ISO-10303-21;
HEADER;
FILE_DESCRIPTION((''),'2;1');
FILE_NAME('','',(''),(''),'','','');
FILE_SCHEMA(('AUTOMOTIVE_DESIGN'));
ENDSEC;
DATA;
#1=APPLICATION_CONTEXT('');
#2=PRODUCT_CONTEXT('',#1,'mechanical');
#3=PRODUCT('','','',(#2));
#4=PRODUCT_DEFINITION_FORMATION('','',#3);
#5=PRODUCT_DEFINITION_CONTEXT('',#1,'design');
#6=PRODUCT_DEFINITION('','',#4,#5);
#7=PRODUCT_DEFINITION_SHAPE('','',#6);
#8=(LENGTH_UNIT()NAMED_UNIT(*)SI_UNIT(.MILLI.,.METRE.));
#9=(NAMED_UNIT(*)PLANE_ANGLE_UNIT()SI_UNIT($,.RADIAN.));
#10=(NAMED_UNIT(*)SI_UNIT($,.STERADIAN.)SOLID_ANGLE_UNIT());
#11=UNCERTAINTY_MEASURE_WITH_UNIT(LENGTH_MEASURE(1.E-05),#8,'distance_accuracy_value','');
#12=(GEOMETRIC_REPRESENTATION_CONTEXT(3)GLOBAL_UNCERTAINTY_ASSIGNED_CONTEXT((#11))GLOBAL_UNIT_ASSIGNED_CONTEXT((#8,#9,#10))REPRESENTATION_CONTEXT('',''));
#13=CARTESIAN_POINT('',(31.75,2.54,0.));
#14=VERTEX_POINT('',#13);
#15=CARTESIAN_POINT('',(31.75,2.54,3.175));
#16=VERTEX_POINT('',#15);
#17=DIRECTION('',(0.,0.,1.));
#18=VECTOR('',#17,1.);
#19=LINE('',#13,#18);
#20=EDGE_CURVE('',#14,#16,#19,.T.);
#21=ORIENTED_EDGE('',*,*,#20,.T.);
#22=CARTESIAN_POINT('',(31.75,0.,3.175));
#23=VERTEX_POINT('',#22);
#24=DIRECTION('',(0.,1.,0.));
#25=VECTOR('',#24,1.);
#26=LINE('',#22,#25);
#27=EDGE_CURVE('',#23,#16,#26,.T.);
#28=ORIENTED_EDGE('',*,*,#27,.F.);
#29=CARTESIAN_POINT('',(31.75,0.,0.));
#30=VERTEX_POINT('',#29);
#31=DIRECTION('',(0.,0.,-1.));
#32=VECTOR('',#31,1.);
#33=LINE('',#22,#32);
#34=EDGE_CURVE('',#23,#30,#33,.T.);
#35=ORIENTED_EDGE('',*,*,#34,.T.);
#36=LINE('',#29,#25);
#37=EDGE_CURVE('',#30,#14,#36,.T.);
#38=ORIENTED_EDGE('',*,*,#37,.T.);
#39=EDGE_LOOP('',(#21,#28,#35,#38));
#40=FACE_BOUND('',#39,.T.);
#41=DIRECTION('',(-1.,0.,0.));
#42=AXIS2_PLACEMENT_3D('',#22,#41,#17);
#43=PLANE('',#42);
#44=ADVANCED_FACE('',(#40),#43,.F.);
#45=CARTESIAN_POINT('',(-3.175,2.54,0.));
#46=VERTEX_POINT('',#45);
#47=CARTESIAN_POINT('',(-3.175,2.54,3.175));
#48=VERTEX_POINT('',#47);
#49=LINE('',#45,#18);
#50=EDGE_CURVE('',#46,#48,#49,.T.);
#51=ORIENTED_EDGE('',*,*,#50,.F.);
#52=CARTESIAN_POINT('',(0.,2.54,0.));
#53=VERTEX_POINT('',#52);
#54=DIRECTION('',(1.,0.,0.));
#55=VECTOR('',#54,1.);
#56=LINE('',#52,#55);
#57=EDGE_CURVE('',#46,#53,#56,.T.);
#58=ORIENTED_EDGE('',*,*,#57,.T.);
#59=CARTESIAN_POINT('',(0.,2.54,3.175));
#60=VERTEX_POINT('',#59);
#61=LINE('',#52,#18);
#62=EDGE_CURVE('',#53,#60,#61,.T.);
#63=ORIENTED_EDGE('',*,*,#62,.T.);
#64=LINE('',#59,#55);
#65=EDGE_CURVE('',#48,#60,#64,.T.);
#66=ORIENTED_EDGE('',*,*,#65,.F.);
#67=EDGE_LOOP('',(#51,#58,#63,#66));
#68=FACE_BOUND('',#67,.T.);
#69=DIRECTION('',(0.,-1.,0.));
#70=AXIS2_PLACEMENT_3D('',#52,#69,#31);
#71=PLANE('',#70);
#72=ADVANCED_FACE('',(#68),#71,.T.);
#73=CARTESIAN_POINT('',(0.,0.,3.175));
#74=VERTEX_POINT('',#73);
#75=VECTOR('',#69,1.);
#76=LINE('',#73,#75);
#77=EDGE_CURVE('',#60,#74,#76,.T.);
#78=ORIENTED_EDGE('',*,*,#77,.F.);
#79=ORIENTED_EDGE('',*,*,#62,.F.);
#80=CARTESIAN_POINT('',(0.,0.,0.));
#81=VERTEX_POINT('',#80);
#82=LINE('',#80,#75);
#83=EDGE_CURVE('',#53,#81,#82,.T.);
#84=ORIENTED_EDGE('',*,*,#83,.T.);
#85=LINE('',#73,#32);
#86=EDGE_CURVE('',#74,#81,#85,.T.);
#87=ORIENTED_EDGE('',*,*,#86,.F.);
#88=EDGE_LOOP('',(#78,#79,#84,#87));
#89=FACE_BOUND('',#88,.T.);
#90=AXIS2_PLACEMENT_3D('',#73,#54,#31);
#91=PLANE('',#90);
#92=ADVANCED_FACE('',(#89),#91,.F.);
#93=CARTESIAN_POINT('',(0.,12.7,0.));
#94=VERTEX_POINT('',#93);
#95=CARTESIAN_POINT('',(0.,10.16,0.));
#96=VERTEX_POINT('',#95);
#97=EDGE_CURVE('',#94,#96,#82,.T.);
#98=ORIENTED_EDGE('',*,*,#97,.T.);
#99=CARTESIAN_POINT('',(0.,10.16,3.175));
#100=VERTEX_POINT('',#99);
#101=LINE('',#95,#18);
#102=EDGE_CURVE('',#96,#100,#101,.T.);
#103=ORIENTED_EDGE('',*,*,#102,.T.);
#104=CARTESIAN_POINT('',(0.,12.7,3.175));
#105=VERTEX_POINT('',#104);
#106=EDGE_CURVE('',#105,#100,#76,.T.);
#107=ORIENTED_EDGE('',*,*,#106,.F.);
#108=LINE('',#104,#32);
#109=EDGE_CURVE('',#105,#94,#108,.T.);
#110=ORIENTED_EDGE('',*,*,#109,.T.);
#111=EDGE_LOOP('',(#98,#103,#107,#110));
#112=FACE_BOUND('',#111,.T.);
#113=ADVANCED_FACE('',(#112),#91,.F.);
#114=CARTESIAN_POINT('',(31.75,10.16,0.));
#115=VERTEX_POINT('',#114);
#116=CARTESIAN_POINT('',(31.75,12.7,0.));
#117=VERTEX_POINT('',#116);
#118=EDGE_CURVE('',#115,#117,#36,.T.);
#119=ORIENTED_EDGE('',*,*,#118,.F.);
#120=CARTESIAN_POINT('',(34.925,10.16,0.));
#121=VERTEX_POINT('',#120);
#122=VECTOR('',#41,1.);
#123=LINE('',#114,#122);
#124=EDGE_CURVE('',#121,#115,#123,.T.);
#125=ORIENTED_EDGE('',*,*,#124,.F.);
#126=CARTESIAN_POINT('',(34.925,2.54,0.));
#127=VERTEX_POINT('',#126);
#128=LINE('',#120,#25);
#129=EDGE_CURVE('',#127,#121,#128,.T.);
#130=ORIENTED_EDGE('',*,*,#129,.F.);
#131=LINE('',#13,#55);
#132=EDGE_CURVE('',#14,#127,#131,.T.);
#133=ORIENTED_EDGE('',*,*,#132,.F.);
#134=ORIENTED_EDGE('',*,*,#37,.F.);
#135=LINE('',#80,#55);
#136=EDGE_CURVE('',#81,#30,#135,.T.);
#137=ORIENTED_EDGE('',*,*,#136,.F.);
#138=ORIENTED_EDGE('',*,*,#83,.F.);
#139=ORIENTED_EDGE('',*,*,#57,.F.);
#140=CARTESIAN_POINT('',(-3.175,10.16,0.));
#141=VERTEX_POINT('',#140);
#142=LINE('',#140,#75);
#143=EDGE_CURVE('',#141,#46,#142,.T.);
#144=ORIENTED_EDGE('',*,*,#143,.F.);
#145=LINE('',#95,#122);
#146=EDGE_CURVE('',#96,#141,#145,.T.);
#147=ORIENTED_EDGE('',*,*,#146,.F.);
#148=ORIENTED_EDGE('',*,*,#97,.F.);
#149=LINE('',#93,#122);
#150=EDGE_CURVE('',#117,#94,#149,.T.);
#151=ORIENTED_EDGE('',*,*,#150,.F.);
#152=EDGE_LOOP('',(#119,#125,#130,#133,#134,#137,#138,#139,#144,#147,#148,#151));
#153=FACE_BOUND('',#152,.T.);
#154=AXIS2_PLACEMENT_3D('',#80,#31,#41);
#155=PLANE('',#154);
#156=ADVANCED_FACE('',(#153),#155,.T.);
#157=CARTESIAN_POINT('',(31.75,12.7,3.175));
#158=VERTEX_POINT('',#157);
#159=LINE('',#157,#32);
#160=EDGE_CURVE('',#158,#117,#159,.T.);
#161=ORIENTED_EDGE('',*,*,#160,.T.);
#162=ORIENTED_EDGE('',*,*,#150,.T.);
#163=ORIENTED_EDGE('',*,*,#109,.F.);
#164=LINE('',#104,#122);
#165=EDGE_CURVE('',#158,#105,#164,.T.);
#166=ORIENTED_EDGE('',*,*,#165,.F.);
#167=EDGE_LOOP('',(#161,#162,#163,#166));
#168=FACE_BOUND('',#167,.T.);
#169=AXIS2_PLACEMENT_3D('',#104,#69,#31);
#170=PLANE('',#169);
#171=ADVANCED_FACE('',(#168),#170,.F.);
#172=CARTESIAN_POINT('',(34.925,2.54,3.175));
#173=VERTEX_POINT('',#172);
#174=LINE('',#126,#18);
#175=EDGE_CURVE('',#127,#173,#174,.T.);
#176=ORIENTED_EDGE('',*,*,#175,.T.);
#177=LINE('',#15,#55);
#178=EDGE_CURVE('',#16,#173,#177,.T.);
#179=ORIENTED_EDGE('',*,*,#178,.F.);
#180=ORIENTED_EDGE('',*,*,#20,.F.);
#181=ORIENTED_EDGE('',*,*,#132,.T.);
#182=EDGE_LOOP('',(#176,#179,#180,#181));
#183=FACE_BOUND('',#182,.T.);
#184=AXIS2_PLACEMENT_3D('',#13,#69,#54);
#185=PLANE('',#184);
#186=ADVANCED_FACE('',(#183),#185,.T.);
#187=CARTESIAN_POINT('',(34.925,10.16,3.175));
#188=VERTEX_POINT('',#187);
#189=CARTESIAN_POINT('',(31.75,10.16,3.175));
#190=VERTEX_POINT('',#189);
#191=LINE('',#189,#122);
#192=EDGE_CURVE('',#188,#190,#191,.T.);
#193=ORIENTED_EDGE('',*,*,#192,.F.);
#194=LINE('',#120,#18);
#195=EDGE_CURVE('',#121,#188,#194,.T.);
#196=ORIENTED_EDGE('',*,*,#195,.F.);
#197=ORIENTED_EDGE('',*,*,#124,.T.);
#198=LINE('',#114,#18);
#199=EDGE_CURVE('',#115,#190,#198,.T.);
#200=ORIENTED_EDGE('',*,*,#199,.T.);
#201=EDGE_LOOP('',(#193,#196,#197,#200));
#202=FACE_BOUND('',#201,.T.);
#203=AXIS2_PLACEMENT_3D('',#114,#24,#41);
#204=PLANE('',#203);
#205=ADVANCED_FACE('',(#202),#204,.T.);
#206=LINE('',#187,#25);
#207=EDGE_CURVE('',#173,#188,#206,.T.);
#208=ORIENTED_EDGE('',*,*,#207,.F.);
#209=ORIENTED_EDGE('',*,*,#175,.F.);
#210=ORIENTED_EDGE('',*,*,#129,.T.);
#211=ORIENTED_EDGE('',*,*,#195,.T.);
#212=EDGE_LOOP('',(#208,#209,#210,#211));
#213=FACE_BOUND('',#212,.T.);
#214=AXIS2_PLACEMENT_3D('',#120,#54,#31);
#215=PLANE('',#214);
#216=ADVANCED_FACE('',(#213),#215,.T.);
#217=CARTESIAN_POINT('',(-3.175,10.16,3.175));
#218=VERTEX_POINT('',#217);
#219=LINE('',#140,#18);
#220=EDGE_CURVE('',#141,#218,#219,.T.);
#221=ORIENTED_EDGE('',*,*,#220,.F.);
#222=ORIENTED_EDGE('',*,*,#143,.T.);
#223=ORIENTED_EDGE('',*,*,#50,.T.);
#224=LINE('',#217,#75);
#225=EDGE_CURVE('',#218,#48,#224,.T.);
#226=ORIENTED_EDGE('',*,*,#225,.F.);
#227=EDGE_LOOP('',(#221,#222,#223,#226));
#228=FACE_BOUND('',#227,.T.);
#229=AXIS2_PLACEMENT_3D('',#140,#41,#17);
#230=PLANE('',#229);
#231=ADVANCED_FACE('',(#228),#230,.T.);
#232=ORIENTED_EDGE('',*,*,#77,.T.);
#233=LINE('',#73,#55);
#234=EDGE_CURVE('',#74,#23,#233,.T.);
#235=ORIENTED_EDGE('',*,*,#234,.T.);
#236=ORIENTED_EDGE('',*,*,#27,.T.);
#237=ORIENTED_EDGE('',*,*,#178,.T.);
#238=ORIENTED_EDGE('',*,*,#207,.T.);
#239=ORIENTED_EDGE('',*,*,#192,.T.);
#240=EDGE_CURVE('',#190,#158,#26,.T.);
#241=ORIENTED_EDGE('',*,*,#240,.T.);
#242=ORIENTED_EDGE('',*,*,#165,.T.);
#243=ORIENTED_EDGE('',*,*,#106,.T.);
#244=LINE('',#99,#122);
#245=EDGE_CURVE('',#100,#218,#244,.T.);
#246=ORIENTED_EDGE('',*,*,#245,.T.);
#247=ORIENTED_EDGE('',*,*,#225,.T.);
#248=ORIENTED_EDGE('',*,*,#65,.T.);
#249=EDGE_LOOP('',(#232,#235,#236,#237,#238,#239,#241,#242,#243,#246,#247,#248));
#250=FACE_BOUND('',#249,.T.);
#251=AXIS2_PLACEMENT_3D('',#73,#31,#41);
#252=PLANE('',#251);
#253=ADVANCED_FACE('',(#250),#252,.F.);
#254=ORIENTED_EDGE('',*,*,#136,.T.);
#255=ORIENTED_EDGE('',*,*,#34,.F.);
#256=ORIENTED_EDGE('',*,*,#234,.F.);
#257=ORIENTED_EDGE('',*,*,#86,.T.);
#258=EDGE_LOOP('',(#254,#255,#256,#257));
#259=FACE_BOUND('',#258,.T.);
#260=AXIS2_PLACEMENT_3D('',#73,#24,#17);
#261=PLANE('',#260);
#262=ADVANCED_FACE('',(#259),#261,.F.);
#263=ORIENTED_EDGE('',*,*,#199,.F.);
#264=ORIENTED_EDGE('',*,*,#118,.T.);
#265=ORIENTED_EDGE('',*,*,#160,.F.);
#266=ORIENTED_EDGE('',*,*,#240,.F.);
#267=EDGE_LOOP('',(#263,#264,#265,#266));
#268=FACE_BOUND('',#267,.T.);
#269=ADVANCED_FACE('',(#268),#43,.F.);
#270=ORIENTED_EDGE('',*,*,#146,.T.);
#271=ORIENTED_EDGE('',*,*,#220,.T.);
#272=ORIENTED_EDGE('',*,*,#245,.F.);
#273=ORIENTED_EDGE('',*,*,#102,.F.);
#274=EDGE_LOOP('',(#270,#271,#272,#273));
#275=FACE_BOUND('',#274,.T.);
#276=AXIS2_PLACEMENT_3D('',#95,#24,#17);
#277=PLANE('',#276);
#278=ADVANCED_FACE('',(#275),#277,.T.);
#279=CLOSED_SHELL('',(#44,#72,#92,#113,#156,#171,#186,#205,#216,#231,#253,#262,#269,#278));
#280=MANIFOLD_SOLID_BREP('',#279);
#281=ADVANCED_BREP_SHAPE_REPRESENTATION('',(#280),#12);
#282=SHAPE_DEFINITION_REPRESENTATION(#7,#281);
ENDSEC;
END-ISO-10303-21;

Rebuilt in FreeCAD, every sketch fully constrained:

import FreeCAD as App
import Part
import Sketcher
from FreeCAD import Vector
Q = App.Units.Quantity

doc = App.newDocument("Part")
body = doc.addObject("PartDesign::Body", "Body")

# Sketch on XY plane
sketch1 = body.newObject("Sketcher::SketchObject", "Sketch")
sketch1.AttachmentSupport = (doc.getObject("XY_Plane"), [""])
sketch1.MapMode = "FlatFace"
sketch1.addGeometry([
    Part.LineSegment(Vector(0, 13, 0), Vector(0, 0, 0)),
    Part.LineSegment(Vector(0, 0, 0), Vector(32, 0, 0)),
    Part.LineSegment(Vector(32, 0, 0), Vector(32, 13, 0)),
    Part.LineSegment(Vector(32, 13, 0), Vector(0, 13, 0)),
], False)
sketch1.addConstraint([
    Sketcher.Constraint("Coincident", 0, 2, 1, 1),
    Sketcher.Constraint("Coincident", 1, 2, 2, 1),
    Sketcher.Constraint("Coincident", 2, 2, 3, 1),
    Sketcher.Constraint("Coincident", 3, 2, 0, 1),
    Sketcher.Constraint("Vertical", 0),
    Sketcher.Constraint("Horizontal", 1),
    Sketcher.Constraint("Vertical", 2),
    Sketcher.Constraint("Horizontal", 3),
    Sketcher.Constraint("Coincident", 0, 2, -1, 1),
    Sketcher.Constraint("DistanceY", 0, 2, 0, 1, Q("0.5 in")),
    Sketcher.Constraint("DistanceX", 1, 1, 1, 2, Q("1.25 in")),
])
pad1 = body.newObject("PartDesign::Pad", "Pad")
pad1.Profile = sketch1
pad1.Length = Q("0.125 in")

# Sketch on XY plane
sketch2 = body.newObject("Sketcher::SketchObject", "Sketch001")
sketch2.AttachmentSupport = (doc.getObject("XY_Plane"), [""])
sketch2.MapMode = "FlatFace"
sketch2.AttachmentOffset = App.Placement(Vector(0, 0, 0.125 * 25.4), App.Rotation())
sketch2.addGeometry([
    Part.LineSegment(Vector(-3.2, 10.2, 0), Vector(-3.2, 2.5, 0)),  # 0
    Part.LineSegment(Vector(-3.2, 2.5, 0), Vector(0, 2.5, 0)),  # 1
    Part.LineSegment(Vector(0, 2.5, 0), Vector(0, 10.2, 0)),  # 2
    Part.LineSegment(Vector(0, 10.2, 0), Vector(-3.2, 10.2, 0)),  # 3
    Part.LineSegment(Vector(31.8, 10.2, 0), Vector(31.8, 2.5, 0)),  # 4
    Part.LineSegment(Vector(31.8, 2.5, 0), Vector(34.9, 2.5, 0)),  # 5
    Part.LineSegment(Vector(34.9, 2.5, 0), Vector(34.9, 10.2, 0)),  # 6
    Part.LineSegment(Vector(34.9, 10.2, 0), Vector(31.8, 10.2, 0)),  # 7
], False)
sketch2.addConstraint([
    Sketcher.Constraint("Coincident", 0, 2, 1, 1),
    Sketcher.Constraint("Coincident", 1, 2, 2, 1),
    Sketcher.Constraint("Coincident", 2, 2, 3, 1),
    Sketcher.Constraint("Coincident", 3, 2, 0, 1),
    Sketcher.Constraint("Coincident", 4, 2, 5, 1),
    Sketcher.Constraint("Coincident", 5, 2, 6, 1),
    Sketcher.Constraint("Coincident", 6, 2, 7, 1),
    Sketcher.Constraint("Coincident", 7, 2, 4, 1),
    Sketcher.Constraint("Vertical", 0),
    Sketcher.Constraint("Horizontal", 1),
    Sketcher.Constraint("Vertical", 2),
    Sketcher.Constraint("Horizontal", 3),
    Sketcher.Constraint("Vertical", 4),
    Sketcher.Constraint("Horizontal", 5),
    Sketcher.Constraint("Vertical", 6),
    Sketcher.Constraint("Horizontal", 7),
    Sketcher.Constraint("PointOnObject", 1, 2, -2),
    Sketcher.Constraint("Horizontal", 1, 2, 4, 2),
    Sketcher.Constraint("Horizontal", 3, 2, 6, 2),
    Sketcher.Constraint("Equal", 3, 5),
    Sketcher.Constraint("DistanceY", 0, 2, 0, 1, Q("0.3 in")),
    Sketcher.Constraint("DistanceY", -1, 1, 0, 2, Q("0.1 in")),
    Sketcher.Constraint("DistanceX", 0, 2, 5, 2, Q("1.5 in")),
    Sketcher.Constraint("DistanceX", 1, 1, 1, 2, Q("0.125 in")),
])
pad2 = body.newObject("PartDesign::Pad", "Pad001")
pad2.Profile = sketch2
pad2.Length = Q("0.125 in")
pad2.Reversed = True

doc.recompute()
